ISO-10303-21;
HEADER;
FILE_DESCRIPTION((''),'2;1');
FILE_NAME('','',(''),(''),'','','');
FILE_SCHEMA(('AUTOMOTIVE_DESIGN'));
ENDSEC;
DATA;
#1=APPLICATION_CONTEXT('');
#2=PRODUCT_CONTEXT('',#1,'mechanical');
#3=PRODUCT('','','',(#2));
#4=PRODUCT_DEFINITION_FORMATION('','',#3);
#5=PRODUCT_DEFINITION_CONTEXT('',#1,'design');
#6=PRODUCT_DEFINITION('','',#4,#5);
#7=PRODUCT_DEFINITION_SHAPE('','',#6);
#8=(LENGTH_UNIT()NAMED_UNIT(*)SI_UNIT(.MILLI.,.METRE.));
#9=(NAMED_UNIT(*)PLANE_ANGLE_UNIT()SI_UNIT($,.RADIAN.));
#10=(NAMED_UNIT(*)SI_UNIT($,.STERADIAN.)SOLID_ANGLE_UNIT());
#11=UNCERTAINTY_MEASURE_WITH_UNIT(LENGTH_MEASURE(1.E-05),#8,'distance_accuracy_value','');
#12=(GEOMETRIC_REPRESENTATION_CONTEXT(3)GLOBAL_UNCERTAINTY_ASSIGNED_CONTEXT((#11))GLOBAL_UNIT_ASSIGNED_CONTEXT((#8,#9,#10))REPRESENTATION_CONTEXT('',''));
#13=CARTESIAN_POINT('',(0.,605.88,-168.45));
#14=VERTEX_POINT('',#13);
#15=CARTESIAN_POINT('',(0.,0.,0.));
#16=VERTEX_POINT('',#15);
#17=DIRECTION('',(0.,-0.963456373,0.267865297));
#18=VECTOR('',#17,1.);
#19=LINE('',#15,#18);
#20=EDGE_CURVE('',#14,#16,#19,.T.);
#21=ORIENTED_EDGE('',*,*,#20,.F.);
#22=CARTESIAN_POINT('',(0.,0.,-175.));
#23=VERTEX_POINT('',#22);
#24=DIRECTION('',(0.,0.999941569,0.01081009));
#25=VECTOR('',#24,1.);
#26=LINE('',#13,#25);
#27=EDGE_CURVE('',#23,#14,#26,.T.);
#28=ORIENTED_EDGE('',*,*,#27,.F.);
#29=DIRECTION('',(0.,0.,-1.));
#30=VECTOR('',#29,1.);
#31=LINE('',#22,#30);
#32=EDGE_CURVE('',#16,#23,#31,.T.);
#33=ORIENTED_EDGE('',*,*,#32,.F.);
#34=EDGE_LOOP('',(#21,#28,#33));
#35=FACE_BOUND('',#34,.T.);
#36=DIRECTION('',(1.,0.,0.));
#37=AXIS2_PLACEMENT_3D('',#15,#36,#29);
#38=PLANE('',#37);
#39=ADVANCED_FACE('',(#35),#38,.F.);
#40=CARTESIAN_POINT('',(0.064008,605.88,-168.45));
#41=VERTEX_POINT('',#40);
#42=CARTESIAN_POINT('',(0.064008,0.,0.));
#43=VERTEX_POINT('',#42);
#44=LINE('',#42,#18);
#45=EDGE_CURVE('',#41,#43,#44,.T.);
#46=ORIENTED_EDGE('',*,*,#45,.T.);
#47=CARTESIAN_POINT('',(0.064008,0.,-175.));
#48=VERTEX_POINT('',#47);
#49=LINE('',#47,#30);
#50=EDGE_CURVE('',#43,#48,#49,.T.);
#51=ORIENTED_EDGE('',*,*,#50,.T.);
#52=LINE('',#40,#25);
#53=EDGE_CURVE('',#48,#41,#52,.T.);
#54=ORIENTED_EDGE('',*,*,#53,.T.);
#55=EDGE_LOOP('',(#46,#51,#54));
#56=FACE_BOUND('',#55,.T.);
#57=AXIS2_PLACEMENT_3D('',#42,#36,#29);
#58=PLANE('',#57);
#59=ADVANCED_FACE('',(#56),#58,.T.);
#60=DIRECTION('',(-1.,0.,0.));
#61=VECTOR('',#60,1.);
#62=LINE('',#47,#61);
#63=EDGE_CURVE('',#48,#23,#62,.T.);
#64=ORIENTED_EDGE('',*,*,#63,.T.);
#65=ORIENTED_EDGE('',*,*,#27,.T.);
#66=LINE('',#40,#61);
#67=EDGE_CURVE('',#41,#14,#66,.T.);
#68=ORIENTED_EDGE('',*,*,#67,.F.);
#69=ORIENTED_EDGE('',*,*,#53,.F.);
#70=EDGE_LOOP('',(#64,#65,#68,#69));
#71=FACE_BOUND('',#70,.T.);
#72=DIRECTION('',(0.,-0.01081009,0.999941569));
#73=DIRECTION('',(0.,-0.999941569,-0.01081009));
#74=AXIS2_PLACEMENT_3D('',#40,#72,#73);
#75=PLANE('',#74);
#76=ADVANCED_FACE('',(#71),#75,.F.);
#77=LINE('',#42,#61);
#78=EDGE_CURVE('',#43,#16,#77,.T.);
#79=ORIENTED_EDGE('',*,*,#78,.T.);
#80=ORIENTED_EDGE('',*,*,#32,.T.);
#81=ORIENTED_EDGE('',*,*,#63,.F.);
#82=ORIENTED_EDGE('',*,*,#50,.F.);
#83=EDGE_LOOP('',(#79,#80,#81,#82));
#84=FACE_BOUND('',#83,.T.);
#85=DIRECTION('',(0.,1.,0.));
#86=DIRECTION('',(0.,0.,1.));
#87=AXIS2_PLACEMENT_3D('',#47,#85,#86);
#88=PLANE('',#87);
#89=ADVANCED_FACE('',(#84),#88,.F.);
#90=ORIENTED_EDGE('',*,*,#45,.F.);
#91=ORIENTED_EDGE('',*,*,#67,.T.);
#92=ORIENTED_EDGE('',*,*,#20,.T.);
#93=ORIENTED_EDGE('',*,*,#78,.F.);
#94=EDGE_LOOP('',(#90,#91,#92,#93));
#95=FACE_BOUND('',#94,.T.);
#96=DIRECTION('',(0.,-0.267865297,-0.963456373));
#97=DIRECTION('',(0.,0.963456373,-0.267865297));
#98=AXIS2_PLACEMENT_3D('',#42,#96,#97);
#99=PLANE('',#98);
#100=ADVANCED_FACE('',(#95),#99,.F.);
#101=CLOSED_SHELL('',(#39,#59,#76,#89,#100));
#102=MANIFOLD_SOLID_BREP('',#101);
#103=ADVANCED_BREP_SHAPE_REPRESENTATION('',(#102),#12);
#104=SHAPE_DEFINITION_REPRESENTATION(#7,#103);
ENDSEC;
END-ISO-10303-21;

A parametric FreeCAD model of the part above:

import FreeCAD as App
import Part
import Sketcher
from FreeCAD import Vector
Q = App.Units.Quantity


def add_polygon(sketch, points):
    """Adds a closed chain of lines whose ends are joined by coincident constraints."""
    first, n = sketch.GeometryCount, len(points)
    for a, b in zip(points, points[1:] + points[:1]):
        sketch.addGeometry(Part.LineSegment(App.Vector(*a, 0), App.Vector(*b, 0)), False)
    for i in range(n):
        sketch.addConstraint(Sketcher.Constraint("Coincident", first + i, 2, first + (i + 1) % n, 1))

doc = App.newDocument("Part")
body = doc.addObject("PartDesign::Body", "Body")

sketch1 = doc.addObject("Sketcher::SketchObject", "Sketch")
body.addObject(sketch1)
sketch1.AttachmentSupport = (doc.YZ_Plane, [""])
sketch1.MapMode = "FlatFace"
add_polygon(sketch1, [(605.88, -168.45), (0, 0), (0, -175)])
sketch1.addConstraint(Sketcher.Constraint("Vertical", 1))
sketch1.addConstraint(Sketcher.Constraint("Coincident", 0, 2, -1, 1))
sketch1.addConstraint(Sketcher.Constraint("DistanceY", 1, 2, 1, 1, Q("175 mm")))
sketch1.addConstraint(Sketcher.Constraint("DistanceX", -1, 1, 2, 2, Q("605.88 mm")))
sketch1.addConstraint(Sketcher.Constraint("DistanceY", 2, 2, -1, 1, Q("168.45 mm")))
pad1 = doc.addObject("PartDesign::Pad", "Pad")
body.addObject(pad1)
pad1.Profile = sketch1
pad1.Length = 0.064008

doc.recompute()
